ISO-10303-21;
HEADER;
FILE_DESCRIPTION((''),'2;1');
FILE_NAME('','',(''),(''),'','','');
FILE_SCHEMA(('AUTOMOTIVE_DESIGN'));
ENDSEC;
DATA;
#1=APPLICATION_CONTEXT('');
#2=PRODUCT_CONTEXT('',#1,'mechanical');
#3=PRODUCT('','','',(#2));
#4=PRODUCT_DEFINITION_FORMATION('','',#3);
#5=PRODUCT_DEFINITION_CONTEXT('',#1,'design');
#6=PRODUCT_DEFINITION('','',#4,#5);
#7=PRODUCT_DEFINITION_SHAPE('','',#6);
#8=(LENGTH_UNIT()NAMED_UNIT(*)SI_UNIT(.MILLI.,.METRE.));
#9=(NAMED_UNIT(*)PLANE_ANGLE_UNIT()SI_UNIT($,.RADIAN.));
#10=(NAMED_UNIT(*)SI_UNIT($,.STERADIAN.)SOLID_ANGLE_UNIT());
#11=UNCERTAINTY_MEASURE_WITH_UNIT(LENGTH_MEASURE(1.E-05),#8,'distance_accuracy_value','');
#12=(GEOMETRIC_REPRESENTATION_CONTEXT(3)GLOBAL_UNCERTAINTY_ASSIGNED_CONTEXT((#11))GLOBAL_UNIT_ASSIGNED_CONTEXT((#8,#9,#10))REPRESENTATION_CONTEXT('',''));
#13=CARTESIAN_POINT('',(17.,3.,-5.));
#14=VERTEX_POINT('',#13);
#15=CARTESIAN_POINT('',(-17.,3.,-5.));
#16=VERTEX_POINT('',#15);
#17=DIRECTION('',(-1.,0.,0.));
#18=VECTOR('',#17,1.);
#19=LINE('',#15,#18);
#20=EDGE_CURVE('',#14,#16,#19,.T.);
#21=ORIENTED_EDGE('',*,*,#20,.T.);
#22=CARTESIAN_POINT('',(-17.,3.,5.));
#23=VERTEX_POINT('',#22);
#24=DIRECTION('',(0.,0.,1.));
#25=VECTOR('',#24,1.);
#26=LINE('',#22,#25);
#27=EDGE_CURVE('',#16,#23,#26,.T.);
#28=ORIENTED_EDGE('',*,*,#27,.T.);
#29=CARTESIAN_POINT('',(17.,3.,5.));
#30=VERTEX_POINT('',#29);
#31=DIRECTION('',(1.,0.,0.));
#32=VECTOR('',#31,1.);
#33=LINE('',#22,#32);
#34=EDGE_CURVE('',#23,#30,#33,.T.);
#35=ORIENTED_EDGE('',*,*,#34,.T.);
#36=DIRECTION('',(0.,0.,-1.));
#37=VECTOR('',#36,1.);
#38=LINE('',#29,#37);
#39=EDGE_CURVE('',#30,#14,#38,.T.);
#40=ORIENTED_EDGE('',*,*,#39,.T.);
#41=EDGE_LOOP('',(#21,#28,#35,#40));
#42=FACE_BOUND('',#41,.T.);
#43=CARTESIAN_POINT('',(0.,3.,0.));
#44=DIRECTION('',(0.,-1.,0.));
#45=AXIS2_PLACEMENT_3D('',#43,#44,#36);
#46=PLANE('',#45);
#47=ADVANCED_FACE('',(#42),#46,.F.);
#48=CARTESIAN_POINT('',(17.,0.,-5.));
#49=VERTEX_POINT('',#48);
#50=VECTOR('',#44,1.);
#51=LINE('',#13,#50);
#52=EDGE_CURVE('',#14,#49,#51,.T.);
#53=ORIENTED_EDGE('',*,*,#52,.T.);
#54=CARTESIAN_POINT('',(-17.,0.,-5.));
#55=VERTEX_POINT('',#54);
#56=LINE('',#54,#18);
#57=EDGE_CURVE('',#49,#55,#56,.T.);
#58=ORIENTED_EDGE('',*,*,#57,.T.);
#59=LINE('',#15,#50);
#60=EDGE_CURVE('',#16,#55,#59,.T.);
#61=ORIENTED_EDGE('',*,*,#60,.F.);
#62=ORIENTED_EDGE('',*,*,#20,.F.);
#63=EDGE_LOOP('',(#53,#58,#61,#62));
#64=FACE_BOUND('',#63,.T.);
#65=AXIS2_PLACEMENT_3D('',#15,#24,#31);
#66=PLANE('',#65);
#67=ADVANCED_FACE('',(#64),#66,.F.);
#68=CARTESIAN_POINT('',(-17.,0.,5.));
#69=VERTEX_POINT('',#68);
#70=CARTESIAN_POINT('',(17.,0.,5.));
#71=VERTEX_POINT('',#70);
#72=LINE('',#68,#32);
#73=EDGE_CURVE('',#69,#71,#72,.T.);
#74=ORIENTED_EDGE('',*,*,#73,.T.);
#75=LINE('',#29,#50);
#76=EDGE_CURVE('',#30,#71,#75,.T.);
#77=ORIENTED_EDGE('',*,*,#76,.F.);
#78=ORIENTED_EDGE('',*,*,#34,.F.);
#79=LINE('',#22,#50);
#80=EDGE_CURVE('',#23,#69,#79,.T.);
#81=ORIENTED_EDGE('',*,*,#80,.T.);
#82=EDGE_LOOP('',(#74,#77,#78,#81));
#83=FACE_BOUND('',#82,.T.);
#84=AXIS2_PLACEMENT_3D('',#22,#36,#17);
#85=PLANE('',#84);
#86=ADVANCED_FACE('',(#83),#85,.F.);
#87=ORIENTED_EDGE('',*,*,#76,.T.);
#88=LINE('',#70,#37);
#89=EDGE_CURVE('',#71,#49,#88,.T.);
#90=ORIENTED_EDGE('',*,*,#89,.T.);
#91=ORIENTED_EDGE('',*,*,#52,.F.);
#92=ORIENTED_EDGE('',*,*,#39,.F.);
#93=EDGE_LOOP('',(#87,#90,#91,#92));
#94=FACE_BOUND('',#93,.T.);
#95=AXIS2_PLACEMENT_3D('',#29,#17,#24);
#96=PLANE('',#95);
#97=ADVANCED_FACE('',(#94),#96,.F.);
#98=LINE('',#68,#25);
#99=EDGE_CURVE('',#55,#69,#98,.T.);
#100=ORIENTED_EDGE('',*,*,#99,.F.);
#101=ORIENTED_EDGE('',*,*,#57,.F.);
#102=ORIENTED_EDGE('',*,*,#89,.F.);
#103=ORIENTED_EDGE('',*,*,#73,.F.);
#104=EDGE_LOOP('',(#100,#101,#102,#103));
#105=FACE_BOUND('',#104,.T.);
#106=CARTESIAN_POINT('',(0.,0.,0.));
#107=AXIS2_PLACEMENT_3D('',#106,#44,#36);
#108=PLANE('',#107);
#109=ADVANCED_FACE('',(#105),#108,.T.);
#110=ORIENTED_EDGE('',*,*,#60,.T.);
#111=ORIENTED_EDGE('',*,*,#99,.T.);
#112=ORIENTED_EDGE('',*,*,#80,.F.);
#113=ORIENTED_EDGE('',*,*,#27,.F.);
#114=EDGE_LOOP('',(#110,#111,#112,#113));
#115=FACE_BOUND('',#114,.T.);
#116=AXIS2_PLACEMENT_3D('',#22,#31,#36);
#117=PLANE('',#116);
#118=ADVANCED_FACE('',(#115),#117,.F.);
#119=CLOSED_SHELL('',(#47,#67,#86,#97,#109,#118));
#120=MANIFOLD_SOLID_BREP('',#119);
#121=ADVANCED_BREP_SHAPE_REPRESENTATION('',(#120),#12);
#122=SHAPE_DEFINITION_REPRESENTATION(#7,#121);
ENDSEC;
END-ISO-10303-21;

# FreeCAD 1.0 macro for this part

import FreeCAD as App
import Part
import Sketcher

V = App.Vector
Q = App.Units.Quantity


def add_polygon(sketch, points):
    """Adds a closed chain of lines whose ends are joined by coincident constraints."""
    first, n = sketch.GeometryCount, len(points)
    for a, b in zip(points, points[1:] + points[:1]):
        sketch.addGeometry(Part.LineSegment(App.Vector(*a, 0), App.Vector(*b, 0)), False)
    for i in range(n):
        sketch.addConstraint(Sketcher.Constraint("Coincident", first + i, 2, first + (i + 1) % n, 1))

doc = App.newDocument("Part")
params = doc.addObject("Spreadsheet::Sheet", "Params")
for row, (alias, value) in enumerate([
    ("sketch1_width", "34 mm"),
    ("sketch1_height", "10 mm"),
    ("pad1_length", "3 mm"),
], start=1):
    params.set(f"A{row}", alias)
    params.set(f"B{row}", "=" + value)
    params.setAlias(f"B{row}", alias)

body = doc.addObject("PartDesign::Body", "Body")

# Sketch on XZ plane
sketch1 = body.newObject("Sketcher::SketchObject", "Sketch")
sketch1.AttachmentSupport = (doc.getObject("XZ_Plane"), [""])
sketch1.MapMode = "FlatFace"
add_polygon(sketch1, [(-17, -5), (-17, 5), (17, 5), (17, -5)])  # lines 0-3
sketch1.addConstraint(Sketcher.Constraint("Vertical", 0))
sketch1.addConstraint(Sketcher.Constraint("Horizontal", 1))
sketch1.addConstraint(Sketcher.Constraint("Vertical", 2))
sketch1.addConstraint(Sketcher.Constraint("Horizontal", 3))
sketch1.addConstraint(Sketcher.Constraint("Symmetric", 0, 2, 2, 2, -1, 1))
sketch1.addConstraint(Sketcher.Constraint("DistanceX", 1, 1, 1, 2, Q("34 mm")))
sketch1.addConstraint(Sketcher.Constraint("DistanceY", 0, 1, 0, 2, Q("10 mm")))
sketch1.setExpression("Constraints[9]", "Params.sketch1_width")
sketch1.setExpression("Constraints[10]", "Params.sketch1_height")
pad1 = body.newObject("PartDesign::Pad", "Pad")
pad1.Profile = sketch1
pad1.setExpression("Length", "Params.pad1_length")
pad1.Reversed = True

doc.recompute()
